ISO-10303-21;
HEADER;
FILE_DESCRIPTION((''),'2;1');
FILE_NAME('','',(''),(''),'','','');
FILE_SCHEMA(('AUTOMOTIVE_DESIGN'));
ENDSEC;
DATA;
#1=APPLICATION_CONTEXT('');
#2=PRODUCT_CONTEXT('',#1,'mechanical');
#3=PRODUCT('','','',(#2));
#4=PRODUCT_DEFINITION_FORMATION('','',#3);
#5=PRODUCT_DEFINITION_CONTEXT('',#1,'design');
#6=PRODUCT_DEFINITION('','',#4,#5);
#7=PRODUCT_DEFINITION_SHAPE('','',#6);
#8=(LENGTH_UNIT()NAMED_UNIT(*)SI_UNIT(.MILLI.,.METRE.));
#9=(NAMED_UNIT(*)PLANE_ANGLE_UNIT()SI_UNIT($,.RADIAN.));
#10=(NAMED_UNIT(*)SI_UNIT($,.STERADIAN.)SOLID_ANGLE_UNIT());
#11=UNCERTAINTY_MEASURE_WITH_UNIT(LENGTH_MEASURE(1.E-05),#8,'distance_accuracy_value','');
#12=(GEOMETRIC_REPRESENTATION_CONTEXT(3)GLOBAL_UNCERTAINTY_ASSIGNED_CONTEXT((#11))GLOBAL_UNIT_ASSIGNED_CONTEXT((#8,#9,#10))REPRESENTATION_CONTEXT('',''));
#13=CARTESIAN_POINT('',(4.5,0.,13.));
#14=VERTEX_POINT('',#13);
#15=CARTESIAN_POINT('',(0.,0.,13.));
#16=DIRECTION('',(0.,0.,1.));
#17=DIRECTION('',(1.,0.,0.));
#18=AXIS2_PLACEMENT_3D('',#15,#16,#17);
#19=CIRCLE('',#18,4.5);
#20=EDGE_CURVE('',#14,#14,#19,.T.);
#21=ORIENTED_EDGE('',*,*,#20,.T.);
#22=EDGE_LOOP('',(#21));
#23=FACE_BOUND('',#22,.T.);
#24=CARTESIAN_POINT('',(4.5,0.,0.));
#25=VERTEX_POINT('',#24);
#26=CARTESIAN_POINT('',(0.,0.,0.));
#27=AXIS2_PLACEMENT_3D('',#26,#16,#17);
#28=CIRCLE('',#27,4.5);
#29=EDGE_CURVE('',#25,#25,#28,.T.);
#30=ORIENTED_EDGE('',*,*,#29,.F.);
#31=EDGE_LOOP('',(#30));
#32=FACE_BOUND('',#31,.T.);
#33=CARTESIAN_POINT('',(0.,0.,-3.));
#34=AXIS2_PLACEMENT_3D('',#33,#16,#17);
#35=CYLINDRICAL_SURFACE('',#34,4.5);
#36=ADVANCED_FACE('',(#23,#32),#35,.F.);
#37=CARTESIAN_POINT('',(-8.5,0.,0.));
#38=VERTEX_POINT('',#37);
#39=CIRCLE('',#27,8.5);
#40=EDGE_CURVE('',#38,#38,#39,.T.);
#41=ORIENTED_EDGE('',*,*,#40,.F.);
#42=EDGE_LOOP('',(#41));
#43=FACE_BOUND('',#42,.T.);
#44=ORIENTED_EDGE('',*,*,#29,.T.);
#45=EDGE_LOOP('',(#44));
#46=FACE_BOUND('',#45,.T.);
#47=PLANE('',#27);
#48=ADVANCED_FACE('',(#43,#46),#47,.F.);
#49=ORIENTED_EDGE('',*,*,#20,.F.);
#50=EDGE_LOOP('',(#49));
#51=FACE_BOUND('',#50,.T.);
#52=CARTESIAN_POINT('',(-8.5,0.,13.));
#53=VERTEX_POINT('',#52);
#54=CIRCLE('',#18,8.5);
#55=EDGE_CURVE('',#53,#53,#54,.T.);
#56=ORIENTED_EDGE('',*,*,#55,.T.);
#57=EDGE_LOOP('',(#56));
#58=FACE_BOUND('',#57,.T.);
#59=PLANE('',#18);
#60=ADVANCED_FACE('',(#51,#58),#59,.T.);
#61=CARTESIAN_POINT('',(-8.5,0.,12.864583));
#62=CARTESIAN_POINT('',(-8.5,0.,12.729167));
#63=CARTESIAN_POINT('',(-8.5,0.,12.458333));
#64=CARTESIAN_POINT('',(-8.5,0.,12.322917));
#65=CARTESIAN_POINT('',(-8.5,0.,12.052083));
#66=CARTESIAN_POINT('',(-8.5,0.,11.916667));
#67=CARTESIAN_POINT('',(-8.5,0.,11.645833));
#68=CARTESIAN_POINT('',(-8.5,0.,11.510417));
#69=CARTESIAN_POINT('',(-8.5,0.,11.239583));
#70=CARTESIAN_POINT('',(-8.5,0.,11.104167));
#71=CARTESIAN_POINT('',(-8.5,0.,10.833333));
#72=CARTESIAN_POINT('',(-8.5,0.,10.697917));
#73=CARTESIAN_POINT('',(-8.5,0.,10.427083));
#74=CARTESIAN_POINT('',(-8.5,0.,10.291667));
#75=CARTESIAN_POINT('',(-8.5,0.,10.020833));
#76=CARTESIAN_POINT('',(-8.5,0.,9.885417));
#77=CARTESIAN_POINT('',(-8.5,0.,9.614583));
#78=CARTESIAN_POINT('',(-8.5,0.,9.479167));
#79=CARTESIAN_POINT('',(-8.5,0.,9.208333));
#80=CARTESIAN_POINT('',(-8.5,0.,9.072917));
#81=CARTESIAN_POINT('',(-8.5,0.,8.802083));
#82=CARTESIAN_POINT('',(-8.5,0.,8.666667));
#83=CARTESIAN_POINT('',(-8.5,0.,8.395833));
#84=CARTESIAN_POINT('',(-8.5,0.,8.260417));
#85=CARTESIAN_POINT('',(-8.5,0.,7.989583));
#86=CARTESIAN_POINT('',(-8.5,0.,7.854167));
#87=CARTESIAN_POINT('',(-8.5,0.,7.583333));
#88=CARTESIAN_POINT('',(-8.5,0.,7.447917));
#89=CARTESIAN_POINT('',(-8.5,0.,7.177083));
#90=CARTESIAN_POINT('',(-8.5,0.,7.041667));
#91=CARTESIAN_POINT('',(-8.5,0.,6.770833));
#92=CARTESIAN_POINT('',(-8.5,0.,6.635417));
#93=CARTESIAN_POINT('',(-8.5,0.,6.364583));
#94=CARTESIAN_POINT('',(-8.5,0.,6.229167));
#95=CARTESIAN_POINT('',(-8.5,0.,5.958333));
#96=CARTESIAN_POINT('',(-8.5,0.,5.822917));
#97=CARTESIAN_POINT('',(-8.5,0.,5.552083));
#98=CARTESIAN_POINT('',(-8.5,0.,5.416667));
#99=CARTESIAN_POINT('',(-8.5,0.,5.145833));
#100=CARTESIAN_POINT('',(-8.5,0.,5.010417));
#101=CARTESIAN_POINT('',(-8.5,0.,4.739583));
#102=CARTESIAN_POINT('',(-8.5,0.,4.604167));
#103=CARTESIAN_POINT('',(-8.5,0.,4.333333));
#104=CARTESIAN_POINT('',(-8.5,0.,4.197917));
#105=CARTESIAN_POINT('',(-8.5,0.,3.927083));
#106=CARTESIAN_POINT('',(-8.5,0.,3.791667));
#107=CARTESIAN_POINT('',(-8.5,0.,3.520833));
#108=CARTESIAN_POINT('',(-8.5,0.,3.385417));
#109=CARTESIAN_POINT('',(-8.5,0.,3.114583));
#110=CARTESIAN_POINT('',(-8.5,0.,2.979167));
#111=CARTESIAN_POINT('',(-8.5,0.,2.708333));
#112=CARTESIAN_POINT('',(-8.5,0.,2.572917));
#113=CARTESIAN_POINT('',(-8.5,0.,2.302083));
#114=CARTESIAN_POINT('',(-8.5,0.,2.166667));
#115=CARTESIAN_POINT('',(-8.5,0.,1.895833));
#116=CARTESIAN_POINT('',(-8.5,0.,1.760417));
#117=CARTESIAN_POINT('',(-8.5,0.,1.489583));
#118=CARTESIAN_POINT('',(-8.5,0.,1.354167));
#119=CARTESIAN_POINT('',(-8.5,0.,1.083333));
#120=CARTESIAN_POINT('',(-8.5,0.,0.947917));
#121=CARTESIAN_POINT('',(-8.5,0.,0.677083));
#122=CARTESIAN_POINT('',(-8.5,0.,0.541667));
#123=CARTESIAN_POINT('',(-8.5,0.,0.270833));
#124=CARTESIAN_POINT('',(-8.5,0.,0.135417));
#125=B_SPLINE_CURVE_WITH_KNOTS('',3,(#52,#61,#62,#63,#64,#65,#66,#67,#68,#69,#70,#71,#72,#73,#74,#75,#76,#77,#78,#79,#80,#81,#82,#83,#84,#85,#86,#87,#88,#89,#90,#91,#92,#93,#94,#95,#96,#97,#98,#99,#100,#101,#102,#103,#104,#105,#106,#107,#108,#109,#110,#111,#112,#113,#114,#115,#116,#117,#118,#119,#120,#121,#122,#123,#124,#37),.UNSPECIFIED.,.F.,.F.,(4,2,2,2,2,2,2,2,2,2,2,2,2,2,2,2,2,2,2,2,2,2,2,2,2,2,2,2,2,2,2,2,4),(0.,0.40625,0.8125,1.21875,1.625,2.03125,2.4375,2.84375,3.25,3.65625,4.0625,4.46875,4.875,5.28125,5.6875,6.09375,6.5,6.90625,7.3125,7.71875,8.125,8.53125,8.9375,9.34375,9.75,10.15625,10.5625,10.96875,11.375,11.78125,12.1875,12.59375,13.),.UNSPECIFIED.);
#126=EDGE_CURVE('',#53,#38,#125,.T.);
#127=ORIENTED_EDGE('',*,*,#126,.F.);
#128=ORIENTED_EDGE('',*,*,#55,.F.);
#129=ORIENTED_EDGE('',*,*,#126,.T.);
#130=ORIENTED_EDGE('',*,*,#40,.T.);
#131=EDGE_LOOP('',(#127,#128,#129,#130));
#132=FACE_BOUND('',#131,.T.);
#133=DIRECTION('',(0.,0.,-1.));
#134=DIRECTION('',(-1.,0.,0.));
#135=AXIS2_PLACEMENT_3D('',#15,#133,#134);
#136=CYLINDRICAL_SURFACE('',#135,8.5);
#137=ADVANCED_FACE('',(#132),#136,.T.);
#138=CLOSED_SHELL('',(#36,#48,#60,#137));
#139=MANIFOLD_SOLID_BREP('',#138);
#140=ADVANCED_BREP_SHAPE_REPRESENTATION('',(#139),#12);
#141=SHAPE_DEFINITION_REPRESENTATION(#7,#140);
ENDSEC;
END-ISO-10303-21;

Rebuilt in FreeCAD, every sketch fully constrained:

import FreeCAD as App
import Part
import Sketcher
from FreeCAD import Vector
Q = App.Units.Quantity

doc = App.newDocument("Part")
body = doc.addObject("PartDesign::Body", "Body")

sketch1 = body.newObject("Sketcher::SketchObject", "Sketch")
sketch1.AttachmentSupport = (doc.getObject("XY_Plane"), [""])
sketch1.MapMode = "FlatFace"
sketch1.addGeometry(Part.Circle(Vector(0, 0, 0), Vector(0, 0, 1), 8), False)
sketch1.addConstraint([
    Sketcher.Constraint("Coincident", 0, 3, -1, 1),
    Sketcher.Constraint("Diameter", 0, Q("17 mm")),
])
pad1 = body.newObject("PartDesign::Pad", "Pad")
pad1.Profile = sketch1
pad1.Length = 13

sketch2 = body.newObject("Sketcher::SketchObject", "Sketch001")
sketch2.AttachmentSupport = (doc.getObject("XY_Plane"), [""])
sketch2.MapMode = "FlatFace"
sketch2.AttachmentOffset = App.Placement(Vector(0, 0, 13), App.Rotation())
sketch2.addGeometry(Part.Circle(Vector(0, 0, 0), Vector(0, 0, 1), 4.5), False)
sketch2.addConstraint([
    Sketcher.Constraint("Coincident", 0, 3, -1, 1),
    Sketcher.Constraint("Diameter", 0, Q("9 mm")),
])
pocket1 = body.newObject("PartDesign::Pocket", "Pocket")
pocket1.Profile = sketch2
pocket1.Length = 16

doc.recompute()
